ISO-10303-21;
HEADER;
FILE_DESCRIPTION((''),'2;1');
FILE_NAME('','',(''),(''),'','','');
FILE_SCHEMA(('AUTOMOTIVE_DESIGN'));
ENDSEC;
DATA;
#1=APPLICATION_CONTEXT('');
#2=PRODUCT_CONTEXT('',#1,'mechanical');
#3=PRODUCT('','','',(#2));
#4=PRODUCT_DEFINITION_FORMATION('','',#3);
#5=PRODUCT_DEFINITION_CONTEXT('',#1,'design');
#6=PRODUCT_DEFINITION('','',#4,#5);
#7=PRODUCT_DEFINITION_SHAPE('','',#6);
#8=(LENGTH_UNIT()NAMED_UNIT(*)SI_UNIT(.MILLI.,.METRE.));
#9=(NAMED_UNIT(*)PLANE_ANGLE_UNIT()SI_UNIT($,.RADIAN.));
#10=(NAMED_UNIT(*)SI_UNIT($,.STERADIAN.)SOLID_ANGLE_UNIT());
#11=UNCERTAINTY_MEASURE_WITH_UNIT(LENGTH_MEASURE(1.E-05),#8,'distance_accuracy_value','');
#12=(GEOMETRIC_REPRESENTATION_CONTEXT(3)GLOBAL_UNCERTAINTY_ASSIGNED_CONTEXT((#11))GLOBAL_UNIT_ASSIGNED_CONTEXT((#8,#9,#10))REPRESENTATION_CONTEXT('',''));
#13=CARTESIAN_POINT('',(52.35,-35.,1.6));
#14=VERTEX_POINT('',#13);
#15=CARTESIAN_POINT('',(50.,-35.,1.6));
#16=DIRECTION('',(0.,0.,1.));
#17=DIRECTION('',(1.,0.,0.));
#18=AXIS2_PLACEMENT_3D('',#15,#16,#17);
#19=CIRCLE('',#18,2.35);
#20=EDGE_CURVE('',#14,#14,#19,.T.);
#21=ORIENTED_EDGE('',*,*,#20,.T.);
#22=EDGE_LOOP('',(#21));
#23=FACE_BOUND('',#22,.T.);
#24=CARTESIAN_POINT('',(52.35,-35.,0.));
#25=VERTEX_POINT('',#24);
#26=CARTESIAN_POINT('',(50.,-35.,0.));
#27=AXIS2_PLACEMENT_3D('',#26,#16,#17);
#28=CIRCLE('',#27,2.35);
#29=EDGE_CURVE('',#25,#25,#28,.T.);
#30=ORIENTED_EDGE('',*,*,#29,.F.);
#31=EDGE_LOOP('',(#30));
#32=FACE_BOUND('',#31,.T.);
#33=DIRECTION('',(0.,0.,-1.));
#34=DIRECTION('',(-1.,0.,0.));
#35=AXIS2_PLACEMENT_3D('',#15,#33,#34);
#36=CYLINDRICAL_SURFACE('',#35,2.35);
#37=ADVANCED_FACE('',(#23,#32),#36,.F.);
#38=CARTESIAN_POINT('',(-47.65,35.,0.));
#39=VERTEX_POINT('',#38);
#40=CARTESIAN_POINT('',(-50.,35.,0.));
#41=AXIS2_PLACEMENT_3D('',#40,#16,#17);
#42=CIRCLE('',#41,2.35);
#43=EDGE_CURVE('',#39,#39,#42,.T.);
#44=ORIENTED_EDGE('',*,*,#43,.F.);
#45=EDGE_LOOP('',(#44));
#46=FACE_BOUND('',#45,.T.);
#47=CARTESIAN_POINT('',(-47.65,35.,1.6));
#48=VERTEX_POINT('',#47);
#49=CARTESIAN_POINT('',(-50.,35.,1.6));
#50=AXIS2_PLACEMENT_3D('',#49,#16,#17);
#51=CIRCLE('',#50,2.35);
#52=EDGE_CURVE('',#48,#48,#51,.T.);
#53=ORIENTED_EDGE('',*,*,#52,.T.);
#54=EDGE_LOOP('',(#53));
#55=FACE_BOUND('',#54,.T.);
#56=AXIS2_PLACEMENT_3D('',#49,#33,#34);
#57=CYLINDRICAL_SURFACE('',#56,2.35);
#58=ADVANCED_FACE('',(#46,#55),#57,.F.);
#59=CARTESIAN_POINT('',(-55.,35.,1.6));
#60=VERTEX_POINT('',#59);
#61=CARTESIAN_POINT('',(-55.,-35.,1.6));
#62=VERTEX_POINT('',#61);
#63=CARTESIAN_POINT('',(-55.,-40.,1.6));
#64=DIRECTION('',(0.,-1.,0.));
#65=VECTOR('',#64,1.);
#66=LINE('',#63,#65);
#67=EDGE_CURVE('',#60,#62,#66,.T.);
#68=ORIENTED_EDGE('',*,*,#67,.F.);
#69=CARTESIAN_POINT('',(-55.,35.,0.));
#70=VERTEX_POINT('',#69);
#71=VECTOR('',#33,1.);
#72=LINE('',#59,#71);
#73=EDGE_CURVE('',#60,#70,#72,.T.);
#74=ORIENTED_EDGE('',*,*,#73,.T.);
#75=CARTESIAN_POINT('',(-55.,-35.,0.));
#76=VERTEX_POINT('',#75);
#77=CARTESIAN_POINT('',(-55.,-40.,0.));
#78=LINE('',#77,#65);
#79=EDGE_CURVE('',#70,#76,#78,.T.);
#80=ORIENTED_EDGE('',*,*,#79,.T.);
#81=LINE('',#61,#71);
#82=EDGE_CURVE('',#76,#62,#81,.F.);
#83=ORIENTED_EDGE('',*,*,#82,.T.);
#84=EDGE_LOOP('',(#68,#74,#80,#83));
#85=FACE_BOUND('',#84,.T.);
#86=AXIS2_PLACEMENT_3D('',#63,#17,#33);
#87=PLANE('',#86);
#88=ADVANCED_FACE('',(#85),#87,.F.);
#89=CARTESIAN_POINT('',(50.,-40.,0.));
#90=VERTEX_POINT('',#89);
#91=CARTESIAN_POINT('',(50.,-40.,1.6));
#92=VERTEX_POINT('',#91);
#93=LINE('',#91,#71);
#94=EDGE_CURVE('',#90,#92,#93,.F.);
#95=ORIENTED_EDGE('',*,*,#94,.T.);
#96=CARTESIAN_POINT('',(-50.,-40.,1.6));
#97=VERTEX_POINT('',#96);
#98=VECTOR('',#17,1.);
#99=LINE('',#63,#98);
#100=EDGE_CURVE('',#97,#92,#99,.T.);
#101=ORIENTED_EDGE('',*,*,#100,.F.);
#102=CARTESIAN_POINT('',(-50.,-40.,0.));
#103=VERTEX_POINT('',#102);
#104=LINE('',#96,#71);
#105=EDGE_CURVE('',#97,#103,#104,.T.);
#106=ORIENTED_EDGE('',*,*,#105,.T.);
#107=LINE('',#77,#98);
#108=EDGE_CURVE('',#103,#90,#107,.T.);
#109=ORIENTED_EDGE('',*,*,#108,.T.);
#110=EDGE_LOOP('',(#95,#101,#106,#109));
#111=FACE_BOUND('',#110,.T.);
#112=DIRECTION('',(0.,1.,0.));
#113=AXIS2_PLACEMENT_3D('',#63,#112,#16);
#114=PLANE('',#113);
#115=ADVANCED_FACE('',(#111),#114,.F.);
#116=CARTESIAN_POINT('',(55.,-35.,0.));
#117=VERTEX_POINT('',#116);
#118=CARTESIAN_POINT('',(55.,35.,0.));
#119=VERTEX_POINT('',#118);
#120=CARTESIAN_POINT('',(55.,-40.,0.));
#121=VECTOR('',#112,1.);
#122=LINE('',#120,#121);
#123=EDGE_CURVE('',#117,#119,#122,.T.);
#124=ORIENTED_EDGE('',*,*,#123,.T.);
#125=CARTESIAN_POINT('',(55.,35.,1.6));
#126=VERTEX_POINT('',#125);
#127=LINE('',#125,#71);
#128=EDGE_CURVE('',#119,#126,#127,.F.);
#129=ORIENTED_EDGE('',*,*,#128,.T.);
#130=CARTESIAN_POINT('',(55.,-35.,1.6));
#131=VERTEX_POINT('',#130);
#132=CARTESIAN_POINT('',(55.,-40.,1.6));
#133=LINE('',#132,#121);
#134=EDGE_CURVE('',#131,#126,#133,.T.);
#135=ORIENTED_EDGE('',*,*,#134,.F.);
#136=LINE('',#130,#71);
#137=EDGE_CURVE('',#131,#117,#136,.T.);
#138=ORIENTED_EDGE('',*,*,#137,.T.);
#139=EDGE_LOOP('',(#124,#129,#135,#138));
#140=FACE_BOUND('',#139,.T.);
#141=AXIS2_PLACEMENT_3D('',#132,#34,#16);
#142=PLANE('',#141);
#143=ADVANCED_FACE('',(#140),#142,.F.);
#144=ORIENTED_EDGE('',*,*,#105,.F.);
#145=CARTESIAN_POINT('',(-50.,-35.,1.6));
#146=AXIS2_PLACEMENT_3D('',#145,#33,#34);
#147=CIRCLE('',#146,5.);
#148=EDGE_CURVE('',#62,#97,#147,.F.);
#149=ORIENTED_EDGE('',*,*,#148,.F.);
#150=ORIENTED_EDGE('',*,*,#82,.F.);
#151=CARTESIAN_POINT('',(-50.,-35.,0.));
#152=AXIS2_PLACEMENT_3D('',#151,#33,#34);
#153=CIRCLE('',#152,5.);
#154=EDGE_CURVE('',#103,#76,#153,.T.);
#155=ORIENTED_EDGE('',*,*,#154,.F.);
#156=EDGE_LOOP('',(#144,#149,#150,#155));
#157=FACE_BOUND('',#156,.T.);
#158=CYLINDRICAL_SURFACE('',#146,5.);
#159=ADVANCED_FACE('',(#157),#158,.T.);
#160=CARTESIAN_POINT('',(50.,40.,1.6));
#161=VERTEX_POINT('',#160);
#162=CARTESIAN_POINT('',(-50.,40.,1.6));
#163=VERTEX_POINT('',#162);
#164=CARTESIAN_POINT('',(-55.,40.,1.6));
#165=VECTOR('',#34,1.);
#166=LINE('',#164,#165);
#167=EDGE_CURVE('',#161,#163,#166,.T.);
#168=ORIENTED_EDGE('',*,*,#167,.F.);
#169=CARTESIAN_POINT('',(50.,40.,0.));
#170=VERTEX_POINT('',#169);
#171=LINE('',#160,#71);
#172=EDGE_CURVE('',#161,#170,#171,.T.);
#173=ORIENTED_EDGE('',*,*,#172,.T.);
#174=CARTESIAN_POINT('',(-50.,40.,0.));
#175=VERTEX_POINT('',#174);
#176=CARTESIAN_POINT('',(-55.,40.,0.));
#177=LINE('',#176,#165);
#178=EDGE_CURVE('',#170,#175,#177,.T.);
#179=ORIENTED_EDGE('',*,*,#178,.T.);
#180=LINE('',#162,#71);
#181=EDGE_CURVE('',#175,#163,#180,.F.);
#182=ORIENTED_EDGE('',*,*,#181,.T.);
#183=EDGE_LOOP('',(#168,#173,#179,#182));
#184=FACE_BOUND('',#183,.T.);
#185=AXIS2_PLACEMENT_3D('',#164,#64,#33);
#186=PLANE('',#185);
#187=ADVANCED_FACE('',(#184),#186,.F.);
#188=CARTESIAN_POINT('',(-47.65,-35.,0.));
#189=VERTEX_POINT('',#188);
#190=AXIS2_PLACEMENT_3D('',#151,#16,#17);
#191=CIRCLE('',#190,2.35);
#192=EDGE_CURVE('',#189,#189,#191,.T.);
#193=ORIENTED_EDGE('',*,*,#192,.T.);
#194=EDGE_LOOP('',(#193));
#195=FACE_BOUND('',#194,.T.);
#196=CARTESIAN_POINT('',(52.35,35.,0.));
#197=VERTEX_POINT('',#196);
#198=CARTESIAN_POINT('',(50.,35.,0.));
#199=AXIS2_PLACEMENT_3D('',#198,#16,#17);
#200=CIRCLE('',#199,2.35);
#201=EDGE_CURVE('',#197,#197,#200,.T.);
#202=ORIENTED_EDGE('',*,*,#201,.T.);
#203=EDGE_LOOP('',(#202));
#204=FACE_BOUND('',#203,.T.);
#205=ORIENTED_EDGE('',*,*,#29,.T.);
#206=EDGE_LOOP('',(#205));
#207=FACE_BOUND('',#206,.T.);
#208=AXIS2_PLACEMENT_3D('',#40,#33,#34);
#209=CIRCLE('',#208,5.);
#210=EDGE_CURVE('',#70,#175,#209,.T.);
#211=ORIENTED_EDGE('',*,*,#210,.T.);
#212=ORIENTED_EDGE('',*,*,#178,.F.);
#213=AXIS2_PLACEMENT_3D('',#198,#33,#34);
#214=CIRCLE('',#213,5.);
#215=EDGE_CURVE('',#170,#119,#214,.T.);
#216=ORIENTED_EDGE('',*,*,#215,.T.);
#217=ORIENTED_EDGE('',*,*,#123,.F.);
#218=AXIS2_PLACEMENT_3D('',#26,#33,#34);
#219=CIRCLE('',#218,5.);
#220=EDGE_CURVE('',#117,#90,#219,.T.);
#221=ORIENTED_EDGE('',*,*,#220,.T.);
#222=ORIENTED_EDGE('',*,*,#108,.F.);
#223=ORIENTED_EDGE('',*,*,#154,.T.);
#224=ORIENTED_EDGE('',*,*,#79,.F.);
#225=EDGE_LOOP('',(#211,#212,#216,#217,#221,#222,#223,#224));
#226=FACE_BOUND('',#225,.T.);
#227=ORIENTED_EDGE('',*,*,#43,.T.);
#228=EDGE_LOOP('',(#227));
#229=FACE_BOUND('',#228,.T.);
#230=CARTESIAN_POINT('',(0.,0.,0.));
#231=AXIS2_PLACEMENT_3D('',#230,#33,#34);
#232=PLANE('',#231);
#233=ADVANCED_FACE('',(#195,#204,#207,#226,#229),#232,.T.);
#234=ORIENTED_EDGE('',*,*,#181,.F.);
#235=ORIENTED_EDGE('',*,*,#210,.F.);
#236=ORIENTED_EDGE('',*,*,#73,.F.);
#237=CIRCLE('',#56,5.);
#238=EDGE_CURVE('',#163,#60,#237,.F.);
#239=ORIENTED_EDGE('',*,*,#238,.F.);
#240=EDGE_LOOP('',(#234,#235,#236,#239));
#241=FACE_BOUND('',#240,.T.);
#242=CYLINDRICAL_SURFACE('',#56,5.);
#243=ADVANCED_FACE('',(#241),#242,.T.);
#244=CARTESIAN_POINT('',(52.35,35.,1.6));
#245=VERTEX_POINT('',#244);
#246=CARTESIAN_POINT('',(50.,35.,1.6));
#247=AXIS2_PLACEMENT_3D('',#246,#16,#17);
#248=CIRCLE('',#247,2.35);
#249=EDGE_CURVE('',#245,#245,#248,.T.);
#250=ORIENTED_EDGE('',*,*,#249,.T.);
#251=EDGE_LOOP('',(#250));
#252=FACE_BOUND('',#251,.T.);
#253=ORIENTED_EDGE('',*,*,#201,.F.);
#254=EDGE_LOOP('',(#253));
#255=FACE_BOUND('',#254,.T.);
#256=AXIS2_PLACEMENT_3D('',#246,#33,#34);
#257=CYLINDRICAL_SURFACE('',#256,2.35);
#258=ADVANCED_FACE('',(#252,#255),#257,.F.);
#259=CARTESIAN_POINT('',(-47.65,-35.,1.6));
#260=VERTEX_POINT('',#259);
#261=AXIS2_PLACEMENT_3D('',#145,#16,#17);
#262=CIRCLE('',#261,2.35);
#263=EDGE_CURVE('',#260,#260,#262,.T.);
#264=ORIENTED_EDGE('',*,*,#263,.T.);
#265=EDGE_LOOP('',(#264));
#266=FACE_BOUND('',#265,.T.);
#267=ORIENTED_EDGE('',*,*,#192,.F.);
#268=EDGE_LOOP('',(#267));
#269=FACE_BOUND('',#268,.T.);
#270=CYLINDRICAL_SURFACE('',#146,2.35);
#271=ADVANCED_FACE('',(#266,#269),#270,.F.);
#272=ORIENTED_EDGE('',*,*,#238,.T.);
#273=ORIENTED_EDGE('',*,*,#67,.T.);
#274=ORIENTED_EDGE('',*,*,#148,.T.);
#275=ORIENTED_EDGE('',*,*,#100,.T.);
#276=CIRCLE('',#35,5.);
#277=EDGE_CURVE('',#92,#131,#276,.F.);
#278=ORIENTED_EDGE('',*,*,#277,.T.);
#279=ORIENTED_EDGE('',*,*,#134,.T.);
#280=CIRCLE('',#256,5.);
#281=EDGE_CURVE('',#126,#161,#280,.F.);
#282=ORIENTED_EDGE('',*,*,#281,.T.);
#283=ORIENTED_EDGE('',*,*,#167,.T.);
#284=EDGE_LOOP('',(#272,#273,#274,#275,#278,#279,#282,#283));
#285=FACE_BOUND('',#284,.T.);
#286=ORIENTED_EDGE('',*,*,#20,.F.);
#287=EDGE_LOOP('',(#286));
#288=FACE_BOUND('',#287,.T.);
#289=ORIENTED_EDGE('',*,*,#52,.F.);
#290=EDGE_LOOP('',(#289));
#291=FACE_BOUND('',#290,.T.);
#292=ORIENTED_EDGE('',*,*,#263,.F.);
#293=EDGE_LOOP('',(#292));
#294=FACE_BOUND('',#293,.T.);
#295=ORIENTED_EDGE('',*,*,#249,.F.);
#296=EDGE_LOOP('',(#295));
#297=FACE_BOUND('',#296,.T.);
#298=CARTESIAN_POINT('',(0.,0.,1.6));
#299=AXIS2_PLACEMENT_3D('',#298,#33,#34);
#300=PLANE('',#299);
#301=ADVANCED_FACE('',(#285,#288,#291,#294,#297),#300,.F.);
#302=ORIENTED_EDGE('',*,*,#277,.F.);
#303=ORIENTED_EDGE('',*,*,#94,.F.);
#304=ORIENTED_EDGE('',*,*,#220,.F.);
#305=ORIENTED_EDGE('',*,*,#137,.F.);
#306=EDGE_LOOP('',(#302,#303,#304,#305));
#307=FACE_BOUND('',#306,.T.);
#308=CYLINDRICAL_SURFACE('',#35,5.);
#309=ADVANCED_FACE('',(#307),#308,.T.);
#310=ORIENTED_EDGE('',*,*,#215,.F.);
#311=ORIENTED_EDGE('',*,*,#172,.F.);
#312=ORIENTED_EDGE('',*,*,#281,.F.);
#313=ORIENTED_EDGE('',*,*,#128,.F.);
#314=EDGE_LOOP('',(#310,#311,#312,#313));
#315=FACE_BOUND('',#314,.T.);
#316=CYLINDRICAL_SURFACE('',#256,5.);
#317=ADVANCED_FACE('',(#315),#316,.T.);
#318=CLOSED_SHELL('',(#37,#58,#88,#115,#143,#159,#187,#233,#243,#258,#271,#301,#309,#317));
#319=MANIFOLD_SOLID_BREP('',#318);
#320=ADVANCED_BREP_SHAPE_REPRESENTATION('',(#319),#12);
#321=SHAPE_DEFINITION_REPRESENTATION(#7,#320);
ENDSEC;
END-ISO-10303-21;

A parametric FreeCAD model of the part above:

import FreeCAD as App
import Part
import Sketcher


def edges_at(feature, points):
    """Names of the edges that pass closest to the given points."""
    edges = feature.Shape.Edges
    near = lambda p: min(range(len(edges)), key=lambda i: edges[i].distToShape(Part.Vertex(*p))[0])
    return sorted({f"Edge{near(p) + 1}" for p in points})


def add_polygon(sketch, points):
    """Adds a closed chain of lines whose ends are joined by coincident constraints."""
    first, n = sketch.GeometryCount, len(points)
    for a, b in zip(points, points[1:] + points[:1]):
        sketch.addGeometry(Part.LineSegment(App.Vector(*a, 0), App.Vector(*b, 0)), False)
    for i in range(n):
        sketch.addConstraint(Sketcher.Constraint("Coincident", first + i, 2, first + (i + 1) % n, 1))

doc = App.newDocument("Part")
params = doc.addObject("Spreadsheet::Sheet", "Params")
for row, (alias, value) in enumerate([
    ("sketch1_diameter", "4.7 mm"),
    ("sketch1_width", "110 mm"),
    ("sketch1_height", "80 mm"),
    ("pad1_length", "1.6 mm"),
    ("fillet_radius", "5 mm"),
], start=1):
    params.set(f"A{row}", alias)
    params.set(f"B{row}", "=" + value)
    params.setAlias(f"B{row}", alias)

body = doc.addObject("PartDesign::Body", "Body")

sketch1 = body.newObject("Sketcher::SketchObject", "Sketch")
sketch1.AttachmentSupport = (doc.getObject("XY_Plane"), [""])
sketch1.MapMode = "FlatFace"
add_polygon(sketch1, [(-55, 40), (-55, -40), (55, -40), (55, 40)])
sketch1.addGeometry(Part.Circle(App.Vector(-50, -35, 0), App.Vector(0, 0, 1), 2.4), False)
sketch1.addGeometry(Part.Circle(App.Vector(50, -35, 0), App.Vector(0, 0, 1), 2.4), False)
sketch1.addGeometry(Part.Circle(App.Vector(-50, 35, 0), App.Vector(0, 0, 1), 2.4), False)
sketch1.addGeometry(Part.Circle(App.Vector(50, 35, 0), App.Vector(0, 0, 1), 2.4), False)
sketch1.addConstraint([
    Sketcher.Constraint("Vertical", 0),
    Sketcher.Constraint("Horizontal", 1),
    Sketcher.Constraint("Vertical", 2),
    Sketcher.Constraint("Horizontal", 3),
    Sketcher.Constraint("Equal", 4, 5),
    Sketcher.Constraint("Equal", 5, 6),
    Sketcher.Constraint("Equal", 6, 7),
    Sketcher.Constraint("Symmetric", 5, 3, 6, 3, -1, 1),
    Sketcher.Constraint("Symmetric", 4, 3, 7, 3, -1, 1),
    Sketcher.Constraint("Symmetric", 0, 2, 2, 2, -1, 1),
    Sketcher.Constraint("Symmetric", 4, 3, 5, 3, -2),
    Sketcher.Constraint("Diameter", 4, 4.7),
    Sketcher.Constraint("DistanceX", 1, 1, 1, 2, 110.0),
    Sketcher.Constraint("DistanceY", 0, 2, 0, 1, 80.0),
    Sketcher.Constraint("DistanceX", 4, 3, -1, 1, 50.0),
    Sketcher.Constraint("DistanceY", 4, 3, -1, 1, 35.0),
])
sketch1.setExpression("Constraints[15]", "Params.sketch1_diameter")
sketch1.setExpression("Constraints[16]", "Params.sketch1_width")
sketch1.setExpression("Constraints[17]", "Params.sketch1_height")
pad1 = body.newObject("PartDesign::Pad", "Pad")
pad1.Profile = sketch1
pad1.setExpression("Length", "Params.pad1_length")
doc.recompute()

fillet = body.newObject("PartDesign::Fillet", "Fillet")
fillet.Base = (pad1, edges_at(pad1, [
    (55, -40, 0.8),
    (-55, -40, 0.8),
    (-55, 40, 0.8),
    (55, 40, 0.8),
]))
fillet.setExpression("Radius", "Params.fillet_radius")

doc.recompute()
